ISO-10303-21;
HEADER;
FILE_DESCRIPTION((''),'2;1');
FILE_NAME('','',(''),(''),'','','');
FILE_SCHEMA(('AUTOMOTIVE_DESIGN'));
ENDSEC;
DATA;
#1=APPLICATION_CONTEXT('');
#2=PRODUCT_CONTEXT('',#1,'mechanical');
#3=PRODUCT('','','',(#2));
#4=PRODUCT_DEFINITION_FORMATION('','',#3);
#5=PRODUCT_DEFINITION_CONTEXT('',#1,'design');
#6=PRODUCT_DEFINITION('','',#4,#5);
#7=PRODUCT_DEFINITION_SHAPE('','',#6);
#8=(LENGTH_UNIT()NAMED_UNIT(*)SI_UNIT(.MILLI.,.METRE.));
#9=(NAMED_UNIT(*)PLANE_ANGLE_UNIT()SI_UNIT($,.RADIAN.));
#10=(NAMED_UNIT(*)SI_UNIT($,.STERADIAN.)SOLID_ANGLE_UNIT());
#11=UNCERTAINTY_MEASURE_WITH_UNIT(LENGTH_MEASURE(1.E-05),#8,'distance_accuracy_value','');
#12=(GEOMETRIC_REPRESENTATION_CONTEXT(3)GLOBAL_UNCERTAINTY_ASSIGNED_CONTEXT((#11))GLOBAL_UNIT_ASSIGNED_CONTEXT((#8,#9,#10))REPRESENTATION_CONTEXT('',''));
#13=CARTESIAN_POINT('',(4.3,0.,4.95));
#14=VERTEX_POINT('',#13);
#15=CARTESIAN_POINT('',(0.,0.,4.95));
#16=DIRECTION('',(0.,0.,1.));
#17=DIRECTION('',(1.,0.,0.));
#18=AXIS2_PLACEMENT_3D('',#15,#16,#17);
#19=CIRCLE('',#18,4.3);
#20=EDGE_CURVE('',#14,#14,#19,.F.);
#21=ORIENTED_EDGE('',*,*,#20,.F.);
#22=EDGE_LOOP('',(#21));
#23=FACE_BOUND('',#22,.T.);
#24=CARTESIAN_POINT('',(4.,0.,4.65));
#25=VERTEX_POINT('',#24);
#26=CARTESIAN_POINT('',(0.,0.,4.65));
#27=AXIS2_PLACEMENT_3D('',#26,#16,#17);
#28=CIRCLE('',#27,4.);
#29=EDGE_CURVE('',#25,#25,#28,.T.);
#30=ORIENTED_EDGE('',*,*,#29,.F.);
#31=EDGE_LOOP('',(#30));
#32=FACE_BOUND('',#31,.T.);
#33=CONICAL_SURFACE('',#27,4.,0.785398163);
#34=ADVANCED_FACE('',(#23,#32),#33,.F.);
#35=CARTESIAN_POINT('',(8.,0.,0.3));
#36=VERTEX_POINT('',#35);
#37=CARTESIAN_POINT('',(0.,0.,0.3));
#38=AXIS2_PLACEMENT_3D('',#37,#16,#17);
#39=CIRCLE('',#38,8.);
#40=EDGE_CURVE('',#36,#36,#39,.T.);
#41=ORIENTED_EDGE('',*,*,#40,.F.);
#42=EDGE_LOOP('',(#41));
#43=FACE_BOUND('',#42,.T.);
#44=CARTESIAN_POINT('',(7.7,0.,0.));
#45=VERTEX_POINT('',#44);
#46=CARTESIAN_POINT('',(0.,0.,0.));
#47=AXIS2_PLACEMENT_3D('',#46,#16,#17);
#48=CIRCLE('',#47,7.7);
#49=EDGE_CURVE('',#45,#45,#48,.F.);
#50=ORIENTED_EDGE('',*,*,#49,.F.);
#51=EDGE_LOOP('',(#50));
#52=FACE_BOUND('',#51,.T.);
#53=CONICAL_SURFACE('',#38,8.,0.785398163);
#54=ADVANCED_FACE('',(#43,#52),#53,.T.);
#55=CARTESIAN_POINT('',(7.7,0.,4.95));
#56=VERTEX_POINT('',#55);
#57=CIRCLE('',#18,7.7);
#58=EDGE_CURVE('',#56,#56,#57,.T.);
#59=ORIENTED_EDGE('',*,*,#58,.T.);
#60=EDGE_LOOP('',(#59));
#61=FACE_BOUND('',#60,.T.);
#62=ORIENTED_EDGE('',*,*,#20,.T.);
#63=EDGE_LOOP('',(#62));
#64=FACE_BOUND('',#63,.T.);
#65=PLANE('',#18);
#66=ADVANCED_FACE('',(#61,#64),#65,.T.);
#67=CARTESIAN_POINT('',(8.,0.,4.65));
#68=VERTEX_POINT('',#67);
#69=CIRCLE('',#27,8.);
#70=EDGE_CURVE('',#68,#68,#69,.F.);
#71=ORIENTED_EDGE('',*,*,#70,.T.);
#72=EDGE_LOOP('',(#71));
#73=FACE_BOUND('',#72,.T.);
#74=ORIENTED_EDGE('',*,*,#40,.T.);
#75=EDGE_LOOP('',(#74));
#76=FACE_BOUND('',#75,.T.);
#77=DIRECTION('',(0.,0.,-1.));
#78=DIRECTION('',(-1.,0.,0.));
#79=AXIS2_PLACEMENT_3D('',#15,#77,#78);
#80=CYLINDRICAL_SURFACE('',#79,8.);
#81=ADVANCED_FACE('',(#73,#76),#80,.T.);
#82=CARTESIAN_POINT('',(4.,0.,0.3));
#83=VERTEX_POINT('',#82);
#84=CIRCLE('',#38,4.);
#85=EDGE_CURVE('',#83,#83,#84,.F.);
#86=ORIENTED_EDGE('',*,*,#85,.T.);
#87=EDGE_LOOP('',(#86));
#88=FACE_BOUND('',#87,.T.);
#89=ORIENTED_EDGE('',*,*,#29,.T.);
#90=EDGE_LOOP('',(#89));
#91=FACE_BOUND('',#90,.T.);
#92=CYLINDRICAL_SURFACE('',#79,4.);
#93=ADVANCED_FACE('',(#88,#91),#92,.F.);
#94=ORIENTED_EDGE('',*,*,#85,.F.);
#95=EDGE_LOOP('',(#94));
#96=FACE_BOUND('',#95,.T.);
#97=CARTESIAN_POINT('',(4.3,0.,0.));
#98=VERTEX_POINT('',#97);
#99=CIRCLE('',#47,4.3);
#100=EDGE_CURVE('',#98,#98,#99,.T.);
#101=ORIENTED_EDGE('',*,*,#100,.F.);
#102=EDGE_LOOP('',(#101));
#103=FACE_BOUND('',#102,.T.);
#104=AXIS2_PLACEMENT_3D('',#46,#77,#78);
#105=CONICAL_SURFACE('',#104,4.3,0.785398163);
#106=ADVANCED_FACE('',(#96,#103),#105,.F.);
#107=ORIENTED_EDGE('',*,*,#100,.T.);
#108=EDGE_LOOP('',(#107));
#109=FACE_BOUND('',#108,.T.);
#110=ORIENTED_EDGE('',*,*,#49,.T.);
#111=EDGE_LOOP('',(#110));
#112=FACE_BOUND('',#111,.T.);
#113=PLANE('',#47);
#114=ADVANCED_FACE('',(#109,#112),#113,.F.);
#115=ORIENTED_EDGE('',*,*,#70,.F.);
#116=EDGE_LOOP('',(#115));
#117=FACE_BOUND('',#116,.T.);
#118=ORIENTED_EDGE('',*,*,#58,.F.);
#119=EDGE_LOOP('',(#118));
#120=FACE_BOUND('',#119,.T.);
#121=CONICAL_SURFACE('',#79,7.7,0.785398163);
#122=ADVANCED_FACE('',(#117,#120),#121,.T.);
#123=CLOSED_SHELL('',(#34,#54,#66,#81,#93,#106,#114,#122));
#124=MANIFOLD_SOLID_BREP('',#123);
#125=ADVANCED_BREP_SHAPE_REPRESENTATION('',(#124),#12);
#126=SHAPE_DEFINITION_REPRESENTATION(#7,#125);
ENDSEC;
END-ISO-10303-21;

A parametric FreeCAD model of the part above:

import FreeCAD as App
import Part
import Sketcher


def edges_at(feature, points):
    """Names of the edges that pass closest to the given points."""
    edges = feature.Shape.Edges
    near = lambda p: min(range(len(edges)), key=lambda i: edges[i].distToShape(Part.Vertex(*p))[0])
    return sorted({f"Edge{near(p) + 1}" for p in points})

doc = App.newDocument("Part")
body = doc.addObject("PartDesign::Body", "Body")

sketch1 = body.newObject("Sketcher::SketchObject", "Sketch")
sketch1.AttachmentSupport = (doc.getObject("XY_Plane"), [""])
sketch1.MapMode = "FlatFace"
sketch1.addGeometry([
    Part.Circle(App.Vector(0, 0, 0), App.Vector(0, 0, 1), 8),
    Part.Circle(App.Vector(0, 0, 0), App.Vector(0, 0, 1), 4),
], False)
sketch1.addConstraint([
    Sketcher.Constraint("Coincident", 0, 3, -1, 1),
    Sketcher.Constraint("Coincident", 1, 3, -1, 1),
    Sketcher.Constraint("Diameter", 0, 16.0),
    Sketcher.Constraint("Diameter", 1, 8.0),
])
pad1 = body.newObject("PartDesign::Pad", "Pad")
pad1.Profile = sketch1
pad1.Length = 4.95
doc.recompute()

chamfer = body.newObject("PartDesign::Chamfer", "Chamfer")
chamfer.Base = (pad1, edges_at(pad1, [
    (-8, 0, 0),
    (-8, 0, 4.95),
    (-4, 0, 0),
    (-4, 0, 4.95),
]))
chamfer.Size = 0.3

doc.recompute()
